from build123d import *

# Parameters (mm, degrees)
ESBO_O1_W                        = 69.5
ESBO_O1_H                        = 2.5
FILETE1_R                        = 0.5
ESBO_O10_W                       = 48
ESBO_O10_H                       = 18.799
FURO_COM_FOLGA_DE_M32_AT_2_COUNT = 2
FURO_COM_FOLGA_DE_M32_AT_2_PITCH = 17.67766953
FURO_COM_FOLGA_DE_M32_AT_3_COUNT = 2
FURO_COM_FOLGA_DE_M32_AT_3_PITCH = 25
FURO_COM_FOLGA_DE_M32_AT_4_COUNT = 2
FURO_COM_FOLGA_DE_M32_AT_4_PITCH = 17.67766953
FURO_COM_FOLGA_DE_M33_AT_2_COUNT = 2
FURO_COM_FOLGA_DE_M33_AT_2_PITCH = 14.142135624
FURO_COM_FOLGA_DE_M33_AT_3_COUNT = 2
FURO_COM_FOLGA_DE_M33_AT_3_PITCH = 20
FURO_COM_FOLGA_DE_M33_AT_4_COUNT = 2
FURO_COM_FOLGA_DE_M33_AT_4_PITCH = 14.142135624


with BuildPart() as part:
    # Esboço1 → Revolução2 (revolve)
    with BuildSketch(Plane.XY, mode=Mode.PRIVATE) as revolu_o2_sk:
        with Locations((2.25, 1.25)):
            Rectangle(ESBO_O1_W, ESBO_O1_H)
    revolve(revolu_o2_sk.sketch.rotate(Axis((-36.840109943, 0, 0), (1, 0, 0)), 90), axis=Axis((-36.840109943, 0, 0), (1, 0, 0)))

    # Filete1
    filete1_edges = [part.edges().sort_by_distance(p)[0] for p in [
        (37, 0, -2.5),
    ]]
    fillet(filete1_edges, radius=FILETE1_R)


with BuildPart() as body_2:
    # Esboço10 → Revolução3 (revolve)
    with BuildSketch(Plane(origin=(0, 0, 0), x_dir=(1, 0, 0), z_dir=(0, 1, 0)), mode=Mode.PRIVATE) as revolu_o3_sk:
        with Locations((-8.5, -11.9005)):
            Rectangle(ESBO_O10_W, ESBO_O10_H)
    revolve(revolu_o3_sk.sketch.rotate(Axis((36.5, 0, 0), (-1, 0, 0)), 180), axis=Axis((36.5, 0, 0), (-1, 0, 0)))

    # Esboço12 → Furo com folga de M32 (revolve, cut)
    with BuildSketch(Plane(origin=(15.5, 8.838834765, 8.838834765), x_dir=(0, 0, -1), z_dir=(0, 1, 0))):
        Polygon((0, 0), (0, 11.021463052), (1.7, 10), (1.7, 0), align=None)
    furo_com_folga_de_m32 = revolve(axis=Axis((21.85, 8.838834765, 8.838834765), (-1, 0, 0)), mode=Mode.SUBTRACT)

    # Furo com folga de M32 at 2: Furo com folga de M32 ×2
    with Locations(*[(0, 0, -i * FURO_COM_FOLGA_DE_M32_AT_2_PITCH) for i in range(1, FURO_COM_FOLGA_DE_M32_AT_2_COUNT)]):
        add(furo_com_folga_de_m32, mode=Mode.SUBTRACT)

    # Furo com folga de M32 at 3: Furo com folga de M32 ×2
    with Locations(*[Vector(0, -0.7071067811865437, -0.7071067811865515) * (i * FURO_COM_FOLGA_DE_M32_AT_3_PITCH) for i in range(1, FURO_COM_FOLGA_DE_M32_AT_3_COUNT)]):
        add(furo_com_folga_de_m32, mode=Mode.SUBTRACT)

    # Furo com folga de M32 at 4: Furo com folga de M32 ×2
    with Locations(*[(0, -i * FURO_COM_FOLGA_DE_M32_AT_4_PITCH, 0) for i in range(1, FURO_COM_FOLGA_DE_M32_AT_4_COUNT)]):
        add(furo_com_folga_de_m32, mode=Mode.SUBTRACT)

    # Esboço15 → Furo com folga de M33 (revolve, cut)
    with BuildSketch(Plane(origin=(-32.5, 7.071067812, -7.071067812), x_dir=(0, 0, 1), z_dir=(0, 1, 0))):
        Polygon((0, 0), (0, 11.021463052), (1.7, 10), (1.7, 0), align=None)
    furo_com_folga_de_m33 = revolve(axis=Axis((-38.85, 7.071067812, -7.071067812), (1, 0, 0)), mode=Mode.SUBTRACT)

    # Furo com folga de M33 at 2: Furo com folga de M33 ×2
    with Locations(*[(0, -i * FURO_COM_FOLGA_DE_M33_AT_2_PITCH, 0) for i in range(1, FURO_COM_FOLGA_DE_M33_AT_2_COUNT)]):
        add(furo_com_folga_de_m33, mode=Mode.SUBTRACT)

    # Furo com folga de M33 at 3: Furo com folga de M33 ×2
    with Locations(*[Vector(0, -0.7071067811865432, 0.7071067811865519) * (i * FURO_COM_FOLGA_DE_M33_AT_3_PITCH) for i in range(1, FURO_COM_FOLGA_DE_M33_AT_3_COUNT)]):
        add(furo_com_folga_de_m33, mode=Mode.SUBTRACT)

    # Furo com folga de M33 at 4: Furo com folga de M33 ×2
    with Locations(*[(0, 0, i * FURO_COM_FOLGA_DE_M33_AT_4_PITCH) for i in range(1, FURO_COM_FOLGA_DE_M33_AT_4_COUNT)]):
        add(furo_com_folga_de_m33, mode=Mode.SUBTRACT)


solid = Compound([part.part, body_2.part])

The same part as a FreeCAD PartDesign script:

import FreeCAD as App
import Part
import Sketcher

V = App.Vector
Q = App.Units.Quantity


def edges_at(feature, points):
    """Names of the edges that pass closest to the given points."""
    edges = feature.Shape.Edges
    near = lambda p: min(range(len(edges)), key=lambda i: edges[i].distToShape(Part.Vertex(*p))[0])
    return sorted({f"Edge{near(p) + 1}" for p in points})

doc = App.newDocument("Part")
body = doc.addObject("PartDesign::Body", "Body")

sketch1 = body.newObject("Sketcher::SketchObject", "Sketch")
sketch1.AttachmentSupport = (doc.getObject("XY_Plane"), [""])
sketch1.MapMode = "FlatFace"
sketch1.addGeometry(Part.LineSegment(V(-32.5, 2.5, 0), V(-32.5, 0, 0)), False)
sketch1.addGeometry(Part.LineSegment(V(-32.5, 0, 0), V(37, 0, 0)), False)
sketch1.addGeometry(Part.LineSegment(V(37, 0, 0), V(37, 2.5, 0)), False)
sketch1.addGeometry(Part.LineSegment(V(37, 2.5, 0), V(-32.5, 2.5, 0)), False)
sketch1.addConstraint(Sketcher.Constraint("Coincident", 0, 2, 1, 1))
sketch1.addConstraint(Sketcher.Constraint("Coincident", 1, 2, 2, 1))
sketch1.addConstraint(Sketcher.Constraint("Coincident", 2, 2, 3, 1))
sketch1.addConstraint(Sketcher.Constraint("Coincident", 3, 2, 0, 1))
sketch1.addConstraint(Sketcher.Constraint("Vertical", 0))
sketch1.addConstraint(Sketcher.Constraint("Horizontal", 1))
sketch1.addConstraint(Sketcher.Constraint("Vertical", 2))
sketch1.addConstraint(Sketcher.Constraint("Horizontal", 3))
sketch1.addConstraint(Sketcher.Constraint("PointOnObject", 0, 2, -1))
sketch1.addConstraint(Sketcher.Constraint("DistanceX", 1, 1, 1, 2, 69.5))
sketch1.addConstraint(Sketcher.Constraint("DistanceY", 0, 2, 0, 1, 2.5))
sketch1.addConstraint(Sketcher.Constraint("DistanceX", -1, 1, 1, 2, 37.0))
revolution = body.newObject("PartDesign::Revolution", "Revolution")
revolution.Profile = sketch1
revolution.ReferenceAxis = (sketch1, ["H_Axis"])
revolution.Angle = 360
doc.recompute()

fillet = body.newObject("PartDesign::Fillet", "Fillet")
fillet.Base = (revolution, edges_at(revolution, [(37, 0, -2.5)]))
fillet.Radius = 0.5
body2 = doc.addObject("PartDesign::Body", "Body001")

sketch2 = body2.newObject("Sketcher::SketchObject", "Sketch001")
sketch2.AttachmentSupport = (doc.getObject("XZ_Plane001"), [""])
sketch2.MapMode = "FlatFace"
sketch2.addGeometry(Part.LineSegment(V(-32.5, 2.501, 0), V(-32.5, 21.3, 0)), False)
sketch2.addGeometry(Part.LineSegment(V(-32.5, 21.3, 0), V(15.5, 21.3, 0)), False)
sketch2.addGeometry(Part.LineSegment(V(15.5, 21.3, 0), V(15.5, 2.501, 0)), False)
sketch2.addGeometry(Part.LineSegment(V(15.5, 2.501, 0), V(-32.5, 2.501, 0)), False)
sketch2.addConstraint(Sketcher.Constraint("Coincident", 0, 2, 1, 1))
sketch2.addConstraint(Sketcher.Constraint("Coincident", 1, 2, 2, 1))
sketch2.addConstraint(Sketcher.Constraint("Coincident", 2, 2, 3, 1))
sketch2.addConstraint(Sketcher.Constraint("Coincident", 3, 2, 0, 1))
sketch2.addConstraint(Sketcher.Constraint("Vertical", 0))
sketch2.addConstraint(Sketcher.Constraint("Horizontal", 1))
sketch2.addConstraint(Sketcher.Constraint("Vertical", 2))
sketch2.addConstraint(Sketcher.Constraint("Horizontal", 3))
sketch2.addConstraint(Sketcher.Constraint("DistanceX", 1, 1, 1, 2, 48.0))
sketch2.addConstraint(Sketcher.Constraint("DistanceX", 0, 2, -1, 1, 32.5))
sketch2.addConstraint(Sketcher.Constraint("DistanceY", -1, 1, 0, 2, 21.3))
sketch2.addConstraint(Sketcher.Constraint("DistanceY", 0, 1, 0, 2, 18.799))
revolution2 = body2.newObject("PartDesign::Revolution", "Revolution001")
revolution2.Profile = sketch2
revolution2.ReferenceAxis = (sketch2, ["H_Axis"])
revolution2.Angle = 360

sketch3 = body2.newObject("Sketcher::SketchObject", "Sketch002")
sketch3.AttachmentSupport = (doc.getObject("XZ_Plane001"), [""])
sketch3.MapMode = "FlatFace"
sketch3.AttachmentOffset = App.Placement(V(0, 0, -8.838835), App.Rotation())
sketch3.addGeometry(Part.LineSegment(V(4.478537, 8.838835, 0), V(15.5, 8.838835, 0)), False)
sketch3.addGeometry(Part.LineSegment(V(15.5, 8.838835, 0), V(15.5, 7.138835, 0)), False)
sketch3.addGeometry(Part.LineSegment(V(15.5, 7.138835, 0), V(5.5, 7.138835, 0)), False)
sketch3.addGeometry(Part.LineSegment(V(5.5, 7.138835, 0), V(4.478537, 8.838835, 0)), False)
sketch3.addGeometry(Part.LineSegment(V(15.5, 8.838835, 0), V(4.478537, 8.838835, 0)), True)
sketch3.addConstraint(Sketcher.Constraint("Coincident", 0, 2, 1, 1))
sketch3.addConstraint(Sketcher.Constraint("Coincident", 1, 2, 2, 1))
sketch3.addConstraint(Sketcher.Constraint("Coincident", 2, 2, 3, 1))
sketch3.addConstraint(Sketcher.Constraint("Coincident", 3, 2, 0, 1))
sketch3.addConstraint(Sketcher.Constraint("Horizontal", 0))
sketch3.addConstraint(Sketcher.Constraint("Vertical", 1))
sketch3.addConstraint(Sketcher.Constraint("Horizontal", 2))
sketch3.addConstraint(Sketcher.Constraint("Horizontal", 4))
sketch3.addConstraint(Sketcher.Constraint("Coincident", 4, 1, 0, 2))
sketch3.addConstraint(Sketcher.Constraint("Equal", 0, 4))
sketch3.addConstraint(Sketcher.Constraint("DistanceX", 2, 2, 2, 1, 10.0))
sketch3.addConstraint(Sketcher.Constraint("Angle", 3, Q("121 deg")))
sketch3.addConstraint(Sketcher.Constraint("DistanceY", 1, 2, 1, 1, 1.7))
sketch3.addConstraint(Sketcher.Constraint("DistanceX", -1, 1, 0, 2, 15.5))
sketch3.addConstraint(Sketcher.Constraint("DistanceY", -1, 1, 0, 2, 8.838835))
groove = body2.newObject("PartDesign::Groove", "Groove")
groove.Profile = sketch3
groove.ReferenceAxis = (sketch3, ["Axis0"])
groove.Angle = 360
doc.recompute()

linearpattern = body2.newObject("PartDesign::LinearPattern", "LinearPattern")
linearpattern.Originals = [groove]
linearpattern.Direction = (doc.getObject("Z_Axis001"), [""])
linearpattern.Mode = "offset"
linearpattern.Offset = 17.67767
linearpattern.Occurrences = 2
linearpattern.Reversed = True
body2.Tip = linearpattern
doc.recompute()

datumline = body2.newObject("PartDesign::Line", "DatumLine")
datumline.Placement = App.Placement(V(0, 0, 0), App.Rotation(V(0, 0, 1), V(0, -0.707106781, -0.707106781)))
linearpattern2 = body2.newObject("PartDesign::LinearPattern", "LinearPattern001")
linearpattern2.Originals = [groove]
linearpattern2.Direction = (datumline, [""])
linearpattern2.Mode = "offset"
linearpattern2.Offset = 25
linearpattern2.Occurrences = 2
body2.Tip = linearpattern2
doc.recompute()

linearpattern3 = body2.newObject("PartDesign::LinearPattern", "LinearPattern002")
linearpattern3.Originals = [groove]
linearpattern3.Direction = (doc.getObject("Y_Axis001"), [""])
linearpattern3.Mode = "offset"
linearpattern3.Offset = 17.67767
linearpattern3.Occurrences = 2
linearpattern3.Reversed = True
body2.Tip = linearpattern3

sketch4 = body2.newObject("Sketcher::SketchObject", "Sketch003")
sketch4.AttachmentSupport = (doc.getObject("XZ_Plane001"), [""])
sketch4.MapMode = "FlatFace"
sketch4.AttachmentOffset = App.Placement(V(0, 0, -7.071068), App.Rotation())
sketch4.addGeometry(Part.LineSegment(V(-21.478537, -7.071068, 0), V(-32.5, -7.071068, 0)), False)
sketch4.addGeometry(Part.LineSegment(V(-32.5, -7.071068, 0), V(-32.5, -5.371068, 0)), False)
sketch4.addGeometry(Part.LineSegment(V(-32.5, -5.371068, 0), V(-22.5, -5.371068, 0)), False)
sketch4.addGeometry(Part.LineSegment(V(-22.5, -5.371068, 0), V(-21.478537, -7.071068, 0)), False)
sketch4.addGeometry(Part.LineSegment(V(-32.5, -7.071068, 0), V(-21.478537, -7.071068, 0)), True)
sketch4.addConstraint(Sketcher.Constraint("Coincident", 0, 2, 1, 1))
sketch4.addConstraint(Sketcher.Constraint("Coincident", 1, 2, 2, 1))
sketch4.addConstraint(Sketcher.Constraint("Coincident", 2, 2, 3, 1))
sketch4.addConstraint(Sketcher.Constraint("Coincident", 3, 2, 0, 1))
sketch4.addConstraint(Sketcher.Constraint("Horizontal", 0))
sketch4.addConstraint(Sketcher.Constraint("Vertical", 1))
sketch4.addConstraint(Sketcher.Constraint("Horizontal", 2))
sketch4.addConstraint(Sketcher.Constraint("Horizontal", 4))
sketch4.addConstraint(Sketcher.Constraint("Coincident", 4, 1, 0, 2))
sketch4.addConstraint(Sketcher.Constraint("Equal", 0, 4))
sketch4.addConstraint(Sketcher.Constraint("DistanceX", 2, 1, 2, 2, 10.0))
sketch4.addConstraint(Sketcher.Constraint("Angle", 3, Q("-59 deg")))
sketch4.addConstraint(Sketcher.Constraint("DistanceY", 1, 1, 1, 2, 1.7))
sketch4.addConstraint(Sketcher.Constraint("DistanceX", 0, 2, -1, 1, 32.5))
sketch4.addConstraint(Sketcher.Constraint("DistanceY", 0, 2, -1, 1, 7.071068))
groove2 = body2.newObject("PartDesign::Groove", "Groove001")
groove2.Profile = sketch4
groove2.ReferenceAxis = (sketch4, ["Axis0"])
groove2.Angle = 360
doc.recompute()

linearpattern4 = body2.newObject("PartDesign::LinearPattern", "LinearPattern003")
linearpattern4.Originals = [groove2]
linearpattern4.Direction = (doc.getObject("Y_Axis001"), [""])
linearpattern4.Mode = "offset"
linearpattern4.Offset = 14.142136
linearpattern4.Occurrences = 2
linearpattern4.Reversed = True
body2.Tip = linearpattern4
doc.recompute()

datumline2 = body2.newObject("PartDesign::Line", "DatumLine001")
datumline2.Placement = App.Placement(V(0, 0, 0), App.Rotation(V(0, 0, 1), V(0, -0.707106781, 0.707106781)))
linearpattern5 = body2.newObject("PartDesign::LinearPattern", "LinearPattern004")
linearpattern5.Originals = [groove2]
linearpattern5.Direction = (datumline2, [""])
linearpattern5.Mode = "offset"
linearpattern5.Offset = 20
linearpattern5.Occurrences = 2
body2.Tip = linearpattern5
doc.recompute()

linearpattern6 = body2.newObject("PartDesign::LinearPattern", "LinearPattern005")
linearpattern6.Originals = [groove2]
linearpattern6.Direction = (doc.getObject("Z_Axis001"), [""])
linearpattern6.Mode = "offset"
linearpattern6.Offset = 14.142136
linearpattern6.Occurrences = 2
body2.Tip = linearpattern6

doc.recompute()
